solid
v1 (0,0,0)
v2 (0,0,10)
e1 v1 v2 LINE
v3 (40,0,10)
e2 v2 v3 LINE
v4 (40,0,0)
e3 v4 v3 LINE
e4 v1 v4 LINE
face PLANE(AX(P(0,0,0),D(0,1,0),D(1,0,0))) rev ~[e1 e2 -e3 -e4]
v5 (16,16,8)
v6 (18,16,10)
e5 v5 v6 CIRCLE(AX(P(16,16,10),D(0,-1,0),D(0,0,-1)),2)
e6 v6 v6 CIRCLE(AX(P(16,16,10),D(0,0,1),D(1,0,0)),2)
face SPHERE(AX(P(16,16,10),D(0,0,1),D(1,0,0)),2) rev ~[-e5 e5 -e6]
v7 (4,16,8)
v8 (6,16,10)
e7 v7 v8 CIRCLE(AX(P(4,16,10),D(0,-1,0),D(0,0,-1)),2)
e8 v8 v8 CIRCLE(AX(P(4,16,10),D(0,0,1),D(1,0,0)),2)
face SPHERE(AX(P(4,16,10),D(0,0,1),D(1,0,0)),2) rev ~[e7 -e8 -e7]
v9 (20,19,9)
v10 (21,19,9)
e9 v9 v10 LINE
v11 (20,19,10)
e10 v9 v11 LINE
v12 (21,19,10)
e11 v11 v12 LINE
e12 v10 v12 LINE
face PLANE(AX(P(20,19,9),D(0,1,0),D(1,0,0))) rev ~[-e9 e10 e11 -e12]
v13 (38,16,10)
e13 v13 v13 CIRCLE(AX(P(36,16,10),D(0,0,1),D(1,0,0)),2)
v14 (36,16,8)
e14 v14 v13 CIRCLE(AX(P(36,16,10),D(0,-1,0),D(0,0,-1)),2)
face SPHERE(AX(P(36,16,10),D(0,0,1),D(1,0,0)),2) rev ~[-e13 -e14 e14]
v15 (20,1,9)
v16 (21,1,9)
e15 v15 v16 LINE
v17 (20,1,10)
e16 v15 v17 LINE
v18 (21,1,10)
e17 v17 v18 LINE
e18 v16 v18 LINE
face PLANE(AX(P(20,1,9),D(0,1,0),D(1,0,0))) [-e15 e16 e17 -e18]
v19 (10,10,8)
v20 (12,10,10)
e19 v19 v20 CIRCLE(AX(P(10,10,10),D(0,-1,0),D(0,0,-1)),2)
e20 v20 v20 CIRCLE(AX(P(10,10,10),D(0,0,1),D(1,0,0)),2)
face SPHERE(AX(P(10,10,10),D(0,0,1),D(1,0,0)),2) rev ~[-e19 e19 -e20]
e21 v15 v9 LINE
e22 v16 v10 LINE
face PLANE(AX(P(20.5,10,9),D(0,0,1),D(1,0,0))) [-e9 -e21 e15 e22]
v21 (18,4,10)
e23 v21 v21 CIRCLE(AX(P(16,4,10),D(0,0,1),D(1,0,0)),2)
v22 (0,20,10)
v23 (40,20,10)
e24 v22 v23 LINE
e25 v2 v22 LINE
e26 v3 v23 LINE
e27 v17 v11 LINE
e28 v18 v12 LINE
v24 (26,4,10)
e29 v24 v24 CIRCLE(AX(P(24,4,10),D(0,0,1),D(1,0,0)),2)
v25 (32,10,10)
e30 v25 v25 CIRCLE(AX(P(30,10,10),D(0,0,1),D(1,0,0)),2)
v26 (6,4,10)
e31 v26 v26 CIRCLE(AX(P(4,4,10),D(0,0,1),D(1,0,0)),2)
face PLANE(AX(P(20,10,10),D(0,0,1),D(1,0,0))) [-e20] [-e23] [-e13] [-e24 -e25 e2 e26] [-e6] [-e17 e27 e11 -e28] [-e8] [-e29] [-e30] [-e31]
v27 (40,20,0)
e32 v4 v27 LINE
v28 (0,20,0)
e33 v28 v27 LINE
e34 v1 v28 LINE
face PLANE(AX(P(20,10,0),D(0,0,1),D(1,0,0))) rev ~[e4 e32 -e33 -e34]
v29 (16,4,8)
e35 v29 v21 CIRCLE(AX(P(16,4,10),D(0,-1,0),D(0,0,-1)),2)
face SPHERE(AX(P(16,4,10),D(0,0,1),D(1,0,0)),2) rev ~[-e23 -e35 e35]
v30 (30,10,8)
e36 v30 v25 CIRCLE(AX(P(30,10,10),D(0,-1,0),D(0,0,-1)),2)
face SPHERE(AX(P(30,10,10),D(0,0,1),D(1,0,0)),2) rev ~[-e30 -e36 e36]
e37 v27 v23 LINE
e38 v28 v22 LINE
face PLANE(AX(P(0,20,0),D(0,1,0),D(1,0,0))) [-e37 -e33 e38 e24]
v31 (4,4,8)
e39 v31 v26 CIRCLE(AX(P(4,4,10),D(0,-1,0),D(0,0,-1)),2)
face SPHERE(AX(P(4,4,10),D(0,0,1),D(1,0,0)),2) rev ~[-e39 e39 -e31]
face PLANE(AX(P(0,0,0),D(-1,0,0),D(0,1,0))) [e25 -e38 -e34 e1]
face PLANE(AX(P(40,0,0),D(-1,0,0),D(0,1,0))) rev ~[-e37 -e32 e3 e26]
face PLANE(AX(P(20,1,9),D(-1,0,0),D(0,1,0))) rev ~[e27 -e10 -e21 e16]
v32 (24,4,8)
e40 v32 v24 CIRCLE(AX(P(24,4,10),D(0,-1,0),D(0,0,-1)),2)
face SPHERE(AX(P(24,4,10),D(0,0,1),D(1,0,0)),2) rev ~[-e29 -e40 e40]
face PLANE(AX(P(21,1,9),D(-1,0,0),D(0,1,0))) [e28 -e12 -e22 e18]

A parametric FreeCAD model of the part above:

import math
import FreeCAD as App
import Part
import Sketcher

V = App.Vector

doc = App.newDocument("Part")
params = doc.addObject("Spreadsheet::Sheet", "Params")
for row, (alias, value) in enumerate([
    ("sketch1_radius", "2 mm"),
    ("revolution_angle", "360 deg"),
    ("sketch2_radius", "2 mm"),
    ("revolution2_angle", "360 deg"),
    ("sketch3_radius", "2 mm"),
    ("revolution3_angle", "360 deg"),
    ("sketch4_radius", "2 mm"),
    ("revolution4_angle", "360 deg"),
    ("sketch5_radius", "2 mm"),
    ("revolution5_angle", "360 deg"),
    ("sketch6_radius", "2 mm"),
    ("revolution6_angle", "360 deg"),
    ("sketch7_radius", "2 mm"),
    ("revolution7_angle", "360 deg"),
    ("sketch8_radius", "2 mm"),
    ("revolution8_angle", "360 deg"),
    ("sketch9_radius", "2 mm"),
    ("revolution9_angle", "360 deg"),
    ("sketch10_width", "1 mm"),
    ("sketch10_height", "18 mm"),
    ("pad1_length", "1 mm"),
    ("sketch11_width", "40 mm"),
    ("sketch11_height", "20 mm"),
    ("pad2_length", "10 mm"),
], start=1):
    params.set(f"A{row}", alias)
    params.set(f"B{row}", "=" + value)
    params.setAlias(f"B{row}", alias)

body = doc.addObject("PartDesign::Body", "Body")

# Sketch on XZ plane
sketch1 = body.newObject("Sketcher::SketchObject", "Sketch")
sketch1.AttachmentSupport = (doc.getObject("XZ_Plane"), [""])
sketch1.MapMode = "FlatFace"
sketch1.AttachmentOffset = App.Placement(V(0, 0, -4), App.Rotation())
sketch1.addGeometry([
    Part.ArcOfCircle(Part.Circle(V(4, 10, 0), V(0, 0, 1), 2), math.radians(-90), math.radians(90)),
    Part.LineSegment(V(4, 12, 0), V(4, 8, 0)),
], False)
sketch1.addGeometry(Part.LineSegment(V(4, 8, 0), V(4, 12, 0)), True)  # axis
sketch1.addConstraint([
    Sketcher.Constraint("Coincident", 0, 1, 1, 2),
    Sketcher.Constraint("Coincident", 1, 1, 0, 2),
    Sketcher.Constraint("Vertical", 1),
    Sketcher.Constraint("Vertical", 2),
    Sketcher.Constraint("Coincident", 2, 1, 0, 1),
    Sketcher.Constraint("Equal", 1, 2),
    Sketcher.Constraint("Radius", 0, 2.0),
    Sketcher.Constraint("DistanceX", -1, 1, 0, 3, 4.0),
    Sketcher.Constraint("DistanceY", -1, 1, 0, 3, 10.0),
    Sketcher.Constraint("DistanceX", -1, 1, 0, 1, 4.0),
])
sketch1.setExpression("Constraints[6]", "Params.sketch1_radius")
revolution = body.newObject("PartDesign::Revolution", "Revolution")
revolution.Profile = sketch1
revolution.ReferenceAxis = (sketch1, ["Axis0"])
revolution.setExpression("Angle", "Params.revolution_angle")
body2 = doc.addObject("PartDesign::Body", "Body001")
body2.AllowCompound = True

# Sketch on XZ plane
sketch2 = body2.newObject("Sketcher::SketchObject", "Sketch001")
sketch2.AttachmentSupport = (doc.getObject("XZ_Plane001"), [""])
sketch2.MapMode = "FlatFace"
sketch2.AttachmentOffset = App.Placement(V(0, 0, -16), App.Rotation())
sketch2.addGeometry([
    Part.ArcOfCircle(Part.Circle(V(4, 10, 0), V(0, 0, 1), 2), math.radians(-90), math.radians(90)),
    Part.LineSegment(V(4, 12, 0), V(4, 8, 0)),
], False)
sketch2.addGeometry(Part.LineSegment(V(4, 8, 0), V(4, 12, 0)), True)  # axis
sketch2.addConstraint([
    Sketcher.Constraint("Coincident", 0, 1, 1, 2),
    Sketcher.Constraint("Coincident", 1, 1, 0, 2),
    Sketcher.Constraint("Vertical", 1),
    Sketcher.Constraint("Vertical", 2),
    Sketcher.Constraint("Coincident", 2, 1, 0, 1),
    Sketcher.Constraint("Equal", 1, 2),
    Sketcher.Constraint("Radius", 0, 2.0),
    Sketcher.Constraint("DistanceX", -1, 1, 0, 3, 4.0),
    Sketcher.Constraint("DistanceY", -1, 1, 0, 3, 10.0),
    Sketcher.Constraint("DistanceX", -1, 1, 0, 1, 4.0),
])
sketch2.setExpression("Constraints[6]", "Params.sketch2_radius")
revolution2 = body2.newObject("PartDesign::Revolution", "Revolution001")
revolution2.Profile = sketch2
revolution2.ReferenceAxis = (sketch2, ["Axis0"])
revolution2.setExpression("Angle", "Params.revolution2_angle")
doc.recompute()

boolean = body2.newObject("PartDesign::Boolean", "Boolean")
boolean.Type = "Fuse"
boolean.addObjects([body])
body3 = doc.addObject("PartDesign::Body", "Body002")
body3.AllowCompound = True
doc.recompute()

body2.Placement = App.Placement(V(12, 0, 0), App.Rotation(V(0, 0, 1), 0))
boolean2 = body3.newObject("PartDesign::Boolean", "Boolean001")
boolean2.Type = "Fuse"
boolean2.addObjects([body2])
body4 = doc.addObject("PartDesign::Body", "Body003")

# Sketch on XZ plane
sketch3 = body4.newObject("Sketcher::SketchObject", "Sketch002")
sketch3.AttachmentSupport = (doc.getObject("XZ_Plane003"), [""])
sketch3.MapMode = "FlatFace"
sketch3.AttachmentOffset = App.Placement(V(0, 0, -10), App.Rotation())
sketch3.addGeometry([
    Part.ArcOfCircle(Part.Circle(V(10, 10, 0), V(0, 0, 1), 2), math.radians(-90), math.radians(90)),
    Part.LineSegment(V(10, 12, 0), V(10, 8, 0)),
], False)
sketch3.addGeometry(Part.LineSegment(V(10, 8, 0), V(10, 12, 0)), True)  # axis
sketch3.addConstraint([
    Sketcher.Constraint("Coincident", 0, 1, 1, 2),
    Sketcher.Constraint("Coincident", 1, 1, 0, 2),
    Sketcher.Constraint("Vertical", 1),
    Sketcher.Constraint("Vertical", 2),
    Sketcher.Constraint("Coincident", 2, 1, 0, 1),
    Sketcher.Constraint("Equal", 1, 2),
    Sketcher.Constraint("Radius", 0, 2.0),
    Sketcher.Constraint("DistanceX", -1, 1, 0, 3, 10.0),
    Sketcher.Constraint("DistanceY", -1, 1, 0, 3, 10.0),
    Sketcher.Constraint("DistanceX", -1, 1, 0, 1, 10.0),
])
sketch3.setExpression("Constraints[6]", "Params.sketch3_radius")
revolution3 = body4.newObject("PartDesign::Revolution", "Revolution002")
revolution3.Profile = sketch3
revolution3.ReferenceAxis = (sketch3, ["Axis0"])
revolution3.setExpression("Angle", "Params.revolution3_angle")
body5 = doc.addObject("PartDesign::Body", "Body004")

# Sketch on XZ plane
sketch4 = body5.newObject("Sketcher::SketchObject", "Sketch003")
sketch4.AttachmentSupport = (doc.getObject("XZ_Plane004"), [""])
sketch4.MapMode = "FlatFace"
sketch4.AttachmentOffset = App.Placement(V(0, 0, -4), App.Rotation())
sketch4.addGeometry([
    Part.ArcOfCircle(Part.Circle(V(24, 10, 0), V(0, 0, 1), 2), math.radians(-90), math.radians(90)),
    Part.LineSegment(V(24, 12, 0), V(24, 8, 0)),
], False)
sketch4.addGeometry(Part.LineSegment(V(24, 8, 0), V(24, 12, 0)), True)  # axis
sketch4.addConstraint([
    Sketcher.Constraint("Coincident", 0, 1, 1, 2),
    Sketcher.Constraint("Coincident", 1, 1, 0, 2),
    Sketcher.Constraint("Vertical", 1),
    Sketcher.Constraint("Vertical", 2),
    Sketcher.Constraint("Coincident", 2, 1, 0, 1),
    Sketcher.Constraint("Equal", 1, 2),
    Sketcher.Constraint("Radius", 0, 2.0),
    Sketcher.Constraint("DistanceX", -1, 1, 0, 3, 24.0),
    Sketcher.Constraint("DistanceY", -1, 1, 0, 3, 10.0),
    Sketcher.Constraint("DistanceX", -1, 1, 0, 1, 24.0),
])
sketch4.setExpression("Constraints[6]", "Params.sketch4_radius")
revolution4 = body5.newObject("PartDesign::Revolution", "Revolution003")
revolution4.Profile = sketch4
revolution4.ReferenceAxis = (sketch4, ["Axis0"])
revolution4.setExpression("Angle", "Params.revolution4_angle")
body6 = doc.addObject("PartDesign::Body", "Body005")

# Sketch on XZ plane
sketch5 = body6.newObject("Sketcher::SketchObject", "Sketch004")
sketch5.AttachmentSupport = (doc.getObject("XZ_Plane005"), [""])
sketch5.MapMode = "FlatFace"
sketch5.AttachmentOffset = App.Placement(V(0, 0, -16), App.Rotation())
sketch5.addGeometry([
    Part.ArcOfCircle(Part.Circle(V(4, 10, 0), V(0, 0, 1), 2), math.radians(-90), math.radians(90)),
    Part.LineSegment(V(4, 12, 0), V(4, 8, 0)),
], False)
sketch5.addGeometry(Part.LineSegment(V(4, 8, 0), V(4, 12, 0)), True)  # axis
sketch5.addConstraint([
    Sketcher.Constraint("Coincident", 0, 1, 1, 2),
    Sketcher.Constraint("Coincident", 1, 1, 0, 2),
    Sketcher.Constraint("Vertical", 1),
    Sketcher.Constraint("Vertical", 2),
    Sketcher.Constraint("Coincident", 2, 1, 0, 1),
    Sketcher.Constraint("Equal", 1, 2),
    Sketcher.Constraint("Radius", 0, 2.0),
    Sketcher.Constraint("DistanceX", -1, 1, 0, 3, 4.0),
    Sketcher.Constraint("DistanceY", -1, 1, 0, 3, 10.0),
    Sketcher.Constraint("DistanceX", -1, 1, 0, 1, 4.0),
])
sketch5.setExpression("Constraints[6]", "Params.sketch5_radius")
revolution5 = body6.newObject("PartDesign::Revolution", "Revolution004")
revolution5.Profile = sketch5
revolution5.ReferenceAxis = (sketch5, ["Axis0"])
revolution5.setExpression("Angle", "Params.revolution5_angle")
body7 = doc.addObject("PartDesign::Body", "Body006")

# Sketch on XZ plane
sketch6 = body7.newObject("Sketcher::SketchObject", "Sketch005")
sketch6.AttachmentSupport = (doc.getObject("XZ_Plane006"), [""])
sketch6.MapMode = "FlatFace"
sketch6.AttachmentOffset = App.Placement(V(0, 0, -16), App.Rotation())
sketch6.addGeometry([
    Part.ArcOfCircle(Part.Circle(V(36, 10, 0), V(0, 0, 1), 2), math.radians(-90), math.radians(90)),
    Part.LineSegment(V(36, 12, 0), V(36, 8, 0)),
], False)
sketch6.addGeometry(Part.LineSegment(V(36, 8, 0), V(36, 12, 0)), True)  # axis
sketch6.addConstraint([
    Sketcher.Constraint("Coincident", 0, 1, 1, 2),
    Sketcher.Constraint("Coincident", 1, 1, 0, 2),
    Sketcher.Constraint("Vertical", 1),
    Sketcher.Constraint("Vertical", 2),
    Sketcher.Constraint("Coincident", 2, 1, 0, 1),
    Sketcher.Constraint("Equal", 1, 2),
    Sketcher.Constraint("Radius", 0, 2.0),
    Sketcher.Constraint("DistanceX", -1, 1, 0, 3, 36.0),
    Sketcher.Constraint("DistanceY", -1, 1, 0, 3, 10.0),
    Sketcher.Constraint("DistanceX", -1, 1, 0, 1, 36.0),
])
sketch6.setExpression("Constraints[6]", "Params.sketch6_radius")
revolution6 = body7.newObject("PartDesign::Revolution", "Revolution005")
revolution6.Profile = sketch6
revolution6.ReferenceAxis = (sketch6, ["Axis0"])
revolution6.setExpression("Angle", "Params.revolution6_angle")
body8 = doc.addObject("PartDesign::Body", "Body007")

# Sketch on XZ plane
sketch7 = body8.newObject("Sketcher::SketchObject", "Sketch006")
sketch7.AttachmentSupport = (doc.getObject("XZ_Plane007"), [""])
sketch7.MapMode = "FlatFace"
sketch7.AttachmentOffset = App.Placement(V(0, 0, -10), App.Rotation())
sketch7.addGeometry([
    Part.ArcOfCircle(Part.Circle(V(30, 10, 0), V(0, 0, 1), 2), math.radians(-90), math.radians(90)),
    Part.LineSegment(V(30, 12, 0), V(30, 8, 0)),
], False)
sketch7.addGeometry(Part.LineSegment(V(30, 8, 0), V(30, 12, 0)), True)  # axis
sketch7.addConstraint([
    Sketcher.Constraint("Coincident", 0, 1, 1, 2),
    Sketcher.Constraint("Coincident", 1, 1, 0, 2),
    Sketcher.Constraint("Vertical", 1),
    Sketcher.Constraint("Vertical", 2),
    Sketcher.Constraint("Coincident", 2, 1, 0, 1),
    Sketcher.Constraint("Equal", 1, 2),
    Sketcher.Constraint("Radius", 0, 2.0),
    Sketcher.Constraint("DistanceX", -1, 1, 0, 3, 30.0),
    Sketcher.Constraint("DistanceY", -1, 1, 0, 3, 10.0),
    Sketcher.Constraint("DistanceX", -1, 1, 0, 1, 30.0),
])
sketch7.setExpression("Constraints[6]", "Params.sketch7_radius")
revolution7 = body8.newObject("PartDesign::Revolution", "Revolution006")
revolution7.Profile = sketch7
revolution7.ReferenceAxis = (sketch7, ["Axis0"])
revolution7.setExpression("Angle", "Params.revolution7_angle")
body9 = doc.addObject("PartDesign::Body", "Body008")

# Sketch on XZ plane
sketch8 = body9.newObject("Sketcher::SketchObject", "Sketch007")
sketch8.AttachmentSupport = (doc.getObject("XZ_Plane008"), [""])
sketch8.MapMode = "FlatFace"
sketch8.AttachmentOffset = App.Placement(V(0, 0, -4), App.Rotation())
sketch8.addGeometry([
    Part.ArcOfCircle(Part.Circle(V(4, 10, 0), V(0, 0, 1), 2), math.radians(-90), math.radians(90)),
    Part.LineSegment(V(4, 12, 0), V(4, 8, 0)),
], False)
sketch8.addGeometry(Part.LineSegment(V(4, 8, 0), V(4, 12, 0)), True)  # axis
sketch8.addConstraint([
    Sketcher.Constraint("Coincident", 0, 1, 1, 2),
    Sketcher.Constraint("Coincident", 1, 1, 0, 2),
    Sketcher.Constraint("Vertical", 1),
    Sketcher.Constraint("Vertical", 2),
    Sketcher.Constraint("Coincident", 2, 1, 0, 1),
    Sketcher.Constraint("Equal", 1, 2),
    Sketcher.Constraint("Radius", 0, 2.0),
    Sketcher.Constraint("DistanceX", -1, 1, 0, 3, 4.0),
    Sketcher.Constraint("DistanceY", -1, 1, 0, 3, 10.0),
    Sketcher.Constraint("DistanceX", -1, 1, 0, 1, 4.0),
])
sketch8.setExpression("Constraints[6]", "Params.sketch8_radius")
revolution8 = body9.newObject("PartDesign::Revolution", "Revolution007")
revolution8.Profile = sketch8
revolution8.ReferenceAxis = (sketch8, ["Axis0"])
revolution8.setExpression("Angle", "Params.revolution8_angle")
body10 = doc.addObject("PartDesign::Body", "Body009")
body10.AllowCompound = True

# Sketch on XZ plane
sketch9 = body10.newObject("Sketcher::SketchObject", "Sketch008")
sketch9.AttachmentSupport = (doc.getObject("XZ_Plane009"), [""])
sketch9.MapMode = "FlatFace"
sketch9.AttachmentOffset = App.Placement(V(0, 0, -16), App.Rotation())
sketch9.addGeometry([
    Part.ArcOfCircle(Part.Circle(V(4, 10, 0), V(0, 0, 1), 2), math.radians(-90), math.radians(90)),
    Part.LineSegment(V(4, 12, 0), V(4, 8, 0)),
], False)
sketch9.addGeometry(Part.LineSegment(V(4, 8, 0), V(4, 12, 0)), True)  # axis
sketch9.addConstraint([
    Sketcher.Constraint("Coincident", 0, 1, 1, 2),
    Sketcher.Constraint("Coincident", 1, 1, 0, 2),
    Sketcher.Constraint("Vertical", 1),
    Sketcher.Constraint("Vertical", 2),
    Sketcher.Constraint("Coincident", 2, 1, 0, 1),
    Sketcher.Constraint("Equal", 1, 2),
    Sketcher.Constraint("Radius", 0, 2.0),
    Sketcher.Constraint("DistanceX", -1, 1, 0, 3, 4.0),
    Sketcher.Constraint("DistanceY", -1, 1, 0, 3, 10.0),
    Sketcher.Constraint("DistanceX", -1, 1, 0, 1, 4.0),
])
sketch9.setExpression("Constraints[6]", "Params.sketch9_radius")
revolution9 = body10.newObject("PartDesign::Revolution", "Revolution008")
revolution9.Profile = sketch9
revolution9.ReferenceAxis = (sketch9, ["Axis0"])
revolution9.setExpression("Angle", "Params.revolution9_angle")
doc.recompute()

boolean3 = body10.newObject("PartDesign::Boolean", "Boolean002")
boolean3.Type = "Fuse"
boolean3.addObjects([body9])
doc.recompute()

boolean4 = body10.newObject("PartDesign::Boolean", "Boolean003")
boolean4.Type = "Fuse"
boolean4.addObjects([body3])
doc.recompute()

boolean5 = body10.newObject("PartDesign::Boolean", "Boolean004")
boolean5.Type = "Fuse"
boolean5.addObjects([body4])
doc.recompute()

boolean6 = body10.newObject("PartDesign::Boolean", "Boolean005")
boolean6.Type = "Fuse"
boolean6.addObjects([body5])
doc.recompute()

boolean7 = body10.newObject("PartDesign::Boolean", "Boolean006")
boolean7.Type = "Fuse"
boolean7.addObjects([body6])
doc.recompute()

boolean8 = body10.newObject("PartDesign::Boolean", "Boolean007")
boolean8.Type = "Fuse"
boolean8.addObjects([body7])
doc.recompute()

boolean9 = body10.newObject("PartDesign::Boolean", "Boolean008")
boolean9.Type = "Fuse"
boolean9.addObjects([body8])
body11 = doc.addObject("PartDesign::Body", "Body010")

# Sketch on XY plane
sketch10 = body11.newObject("Sketcher::SketchObject", "Sketch009")
sketch10.AttachmentSupport = (doc.getObject("XY_Plane010"), [""])
sketch10.MapMode = "FlatFace"
sketch10.AttachmentOffset = App.Placement(V(0, 0, 9), App.Rotation())
sketch10.addGeometry([
    Part.LineSegment(V(20, 19, 0), V(20, 1, 0)),
    Part.LineSegment(V(20, 1, 0), V(21, 1, 0)),
    Part.LineSegment(V(21, 1, 0), V(21, 19, 0)),
    Part.LineSegment(V(21, 19, 0), V(20, 19, 0)),
], False)
sketch10.addConstraint([
    Sketcher.Constraint("Coincident", 0, 2, 1, 1),
    Sketcher.Constraint("Coincident", 1, 2, 2, 1),
    Sketcher.Constraint("Coincident", 2, 2, 3, 1),
    Sketcher.Constraint("Coincident", 3, 2, 0, 1),
    Sketcher.Constraint("Vertical", 0),
    Sketcher.Constraint("Horizontal", 1),
    Sketcher.Constraint("Vertical", 2),
    Sketcher.Constraint("Horizontal", 3),
    Sketcher.Constraint("DistanceX", 1, 1, 1, 2, 1.0),
    Sketcher.Constraint("DistanceY", 0, 2, 0, 1, 18.0),
    Sketcher.Constraint("DistanceX", -1, 1, 0, 2, 20.0),
    Sketcher.Constraint("DistanceY", -1, 1, 0, 2, 1.0),
])
sketch10.setExpression("Constraints[8]", "Params.sketch10_width")
sketch10.setExpression("Constraints[9]", "Params.sketch10_height")
pad1 = body11.newObject("PartDesign::Pad", "Pad")
pad1.Profile = sketch10
pad1.setExpression("Length", "Params.pad1_length")
body12 = doc.addObject("PartDesign::Body", "Body011")

# Sketch on XY plane
sketch11 = body12.newObject("Sketcher::SketchObject", "Sketch010")
sketch11.AttachmentSupport = (doc.getObject("XY_Plane011"), [""])
sketch11.MapMode = "FlatFace"
sketch11.addGeometry([
    Part.LineSegment(V(0, 20, 0), V(0, 0, 0)),
    Part.LineSegment(V(0, 0, 0), V(40, 0, 0)),
    Part.LineSegment(V(40, 0, 0), V(40, 20, 0)),
    Part.LineSegment(V(40, 20, 0), V(0, 20, 0)),
], False)
sketch11.addConstraint([
    Sketcher.Constraint("Coincident", 0, 2, 1, 1),
    Sketcher.Constraint("Coincident", 1, 2, 2, 1),
    Sketcher.Constraint("Coincident", 2, 2, 3, 1),
    Sketcher.Constraint("Coincident", 3, 2, 0, 1),
    Sketcher.Constraint("Vertical", 0),
    Sketcher.Constraint("Horizontal", 1),
    Sketcher.Constraint("Vertical", 2),
    Sketcher.Constraint("Horizontal", 3),
    Sketcher.Constraint("Coincident", 0, 2, -1, 1),
    Sketcher.Constraint("DistanceX", 1, 1, 1, 2, 40.0),
    Sketcher.Constraint("DistanceY", 0, 2, 0, 1, 20.0),
])
sketch11.setExpression("Constraints[9]", "Params.sketch11_width")
sketch11.setExpression("Constraints[10]", "Params.sketch11_height")
pad2 = body12.newObject("PartDesign::Pad", "Pad001")
pad2.Profile = sketch11
pad2.setExpression("Length", "Params.pad2_length")
doc.recompute()

boolean10 = body12.newObject("PartDesign::Boolean", "Boolean009")
boolean10.Type = "Cut"
boolean10.addObjects([body11])
doc.recompute()

boolean11 = body12.newObject("PartDesign::Boolean", "Boolean010")
boolean11.Type = "Cut"
boolean11.addObjects([body10])

doc.recompute()
